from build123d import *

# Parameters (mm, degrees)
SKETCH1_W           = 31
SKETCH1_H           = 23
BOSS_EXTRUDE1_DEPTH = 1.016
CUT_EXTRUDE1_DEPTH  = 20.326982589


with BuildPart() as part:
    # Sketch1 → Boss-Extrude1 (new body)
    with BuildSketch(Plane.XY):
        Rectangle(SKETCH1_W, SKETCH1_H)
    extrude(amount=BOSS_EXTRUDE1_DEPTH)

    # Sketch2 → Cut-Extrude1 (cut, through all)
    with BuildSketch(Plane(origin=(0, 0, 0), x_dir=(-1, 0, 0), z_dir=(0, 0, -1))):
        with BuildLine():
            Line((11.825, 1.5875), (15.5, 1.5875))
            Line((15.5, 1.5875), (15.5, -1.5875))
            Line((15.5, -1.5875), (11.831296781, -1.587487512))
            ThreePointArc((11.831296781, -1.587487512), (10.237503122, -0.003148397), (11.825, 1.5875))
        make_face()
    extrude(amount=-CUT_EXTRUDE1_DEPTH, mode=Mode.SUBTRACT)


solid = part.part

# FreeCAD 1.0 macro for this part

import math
import FreeCAD as App
import Part
import Sketcher

V = App.Vector
Q = App.Units.Quantity


def add_polygon(sketch, points):
    """Adds a closed chain of lines whose ends are joined by coincident constraints."""
    first, n = sketch.GeometryCount, len(points)
    for a, b in zip(points, points[1:] + points[:1]):
        sketch.addGeometry(Part.LineSegment(App.Vector(*a, 0), App.Vector(*b, 0)), False)
    for i in range(n):
        sketch.addConstraint(Sketcher.Constraint("Coincident", first + i, 2, first + (i + 1) % n, 1))

doc = App.newDocument("Part")
body = doc.addObject("PartDesign::Body", "Body")

# Sketch on XY plane
sketch1 = doc.addObject("Sketcher::SketchObject", "Sketch")
body.addObject(sketch1)
sketch1.AttachmentSupport = (doc.XY_Plane, [""])
sketch1.MapMode = "FlatFace"
add_polygon(sketch1, [(-15.5, 11.5), (-15.5, -11.5), (15.5, -11.5), (15.5, 11.5)])  # lines 0-3
sketch1.addConstraint(Sketcher.Constraint("Vertical", 0))
sketch1.addConstraint(Sketcher.Constraint("Horizontal", 1))
sketch1.addConstraint(Sketcher.Constraint("Vertical", 2))
sketch1.addConstraint(Sketcher.Constraint("Horizontal", 3))
sketch1.addConstraint(Sketcher.Constraint("Symmetric", 0, 2, 2, 2, -1, 1))
sketch1.addConstraint(Sketcher.Constraint("DistanceX", 1, 1, 1, 2, Q("31 mm")))
sketch1.addConstraint(Sketcher.Constraint("DistanceY", 0, 2, 0, 1, Q("23 mm")))
pad1 = doc.addObject("PartDesign::Pad", "Pad")
body.addObject(pad1)
pad1.Profile = sketch1
pad1.Length = 1.016

# Sketch on XY plane
sketch2 = doc.addObject("Sketcher::SketchObject", "Sketch001")
body.addObject(sketch2)
sketch2.AttachmentSupport = (doc.XY_Plane, [""])
sketch2.MapMode = "FlatFace"
sketch2.addGeometry(Part.LineSegment(V(-15.5, 1.5875, 0), V(-11.825, 1.5875, 0)), False)
sketch2.addGeometry(Part.ArcOfCircle(Part.Circle(V(-11.825, 0, 0), V(0, 0, 1), 1.5875), math.radians(-90.227263), math.radians(90)), False)
sketch2.addGeometry(Part.LineSegment(V(-11.831297, -1.587488, 0), V(-15.5, -1.5875, 0)), False)
sketch2.addGeometry(Part.LineSegment(V(-15.5, -1.5875, 0), V(-15.5, 1.5875, 0)), False)
sketch2.addConstraint(Sketcher.Constraint("Tangent", 0, 2, 1, 2))
sketch2.addConstraint(Sketcher.Constraint("Coincident", 1, 1, 2, 1))
sketch2.addConstraint(Sketcher.Constraint("Coincident", 2, 2, 3, 1))
sketch2.addConstraint(Sketcher.Constraint("Coincident", 3, 2, 0, 1))
sketch2.addConstraint(Sketcher.Constraint("Horizontal", 0))
sketch2.addConstraint(Sketcher.Constraint("Vertical", 3))
sketch2.addConstraint(Sketcher.Constraint("PointOnObject", 1, 3, -1))
sketch2.addConstraint(Sketcher.Constraint("DistanceX", 2, 2, -1, 1, Q("15.5 mm")))
sketch2.addConstraint(Sketcher.Constraint("Radius", 1, Q("1.5875 mm")))
sketch2.addConstraint(Sketcher.Constraint("DistanceX", 0, 1, 0, 2, Q("3.675 mm")))
sketch2.addConstraint(Sketcher.Constraint("DistanceY", 3, 1, 3, 2, Q("3.175 mm")))
sketch2.addConstraint(Sketcher.Constraint("Distance", 2, Q("3.668703 mm")))
pocket1 = doc.addObject("PartDesign::Pocket", "Pocket")
body.addObject(pocket1)
pocket1.Profile = sketch2
pocket1.Type = "ThroughAll"
pocket1.Reversed = True

doc.recompute()
